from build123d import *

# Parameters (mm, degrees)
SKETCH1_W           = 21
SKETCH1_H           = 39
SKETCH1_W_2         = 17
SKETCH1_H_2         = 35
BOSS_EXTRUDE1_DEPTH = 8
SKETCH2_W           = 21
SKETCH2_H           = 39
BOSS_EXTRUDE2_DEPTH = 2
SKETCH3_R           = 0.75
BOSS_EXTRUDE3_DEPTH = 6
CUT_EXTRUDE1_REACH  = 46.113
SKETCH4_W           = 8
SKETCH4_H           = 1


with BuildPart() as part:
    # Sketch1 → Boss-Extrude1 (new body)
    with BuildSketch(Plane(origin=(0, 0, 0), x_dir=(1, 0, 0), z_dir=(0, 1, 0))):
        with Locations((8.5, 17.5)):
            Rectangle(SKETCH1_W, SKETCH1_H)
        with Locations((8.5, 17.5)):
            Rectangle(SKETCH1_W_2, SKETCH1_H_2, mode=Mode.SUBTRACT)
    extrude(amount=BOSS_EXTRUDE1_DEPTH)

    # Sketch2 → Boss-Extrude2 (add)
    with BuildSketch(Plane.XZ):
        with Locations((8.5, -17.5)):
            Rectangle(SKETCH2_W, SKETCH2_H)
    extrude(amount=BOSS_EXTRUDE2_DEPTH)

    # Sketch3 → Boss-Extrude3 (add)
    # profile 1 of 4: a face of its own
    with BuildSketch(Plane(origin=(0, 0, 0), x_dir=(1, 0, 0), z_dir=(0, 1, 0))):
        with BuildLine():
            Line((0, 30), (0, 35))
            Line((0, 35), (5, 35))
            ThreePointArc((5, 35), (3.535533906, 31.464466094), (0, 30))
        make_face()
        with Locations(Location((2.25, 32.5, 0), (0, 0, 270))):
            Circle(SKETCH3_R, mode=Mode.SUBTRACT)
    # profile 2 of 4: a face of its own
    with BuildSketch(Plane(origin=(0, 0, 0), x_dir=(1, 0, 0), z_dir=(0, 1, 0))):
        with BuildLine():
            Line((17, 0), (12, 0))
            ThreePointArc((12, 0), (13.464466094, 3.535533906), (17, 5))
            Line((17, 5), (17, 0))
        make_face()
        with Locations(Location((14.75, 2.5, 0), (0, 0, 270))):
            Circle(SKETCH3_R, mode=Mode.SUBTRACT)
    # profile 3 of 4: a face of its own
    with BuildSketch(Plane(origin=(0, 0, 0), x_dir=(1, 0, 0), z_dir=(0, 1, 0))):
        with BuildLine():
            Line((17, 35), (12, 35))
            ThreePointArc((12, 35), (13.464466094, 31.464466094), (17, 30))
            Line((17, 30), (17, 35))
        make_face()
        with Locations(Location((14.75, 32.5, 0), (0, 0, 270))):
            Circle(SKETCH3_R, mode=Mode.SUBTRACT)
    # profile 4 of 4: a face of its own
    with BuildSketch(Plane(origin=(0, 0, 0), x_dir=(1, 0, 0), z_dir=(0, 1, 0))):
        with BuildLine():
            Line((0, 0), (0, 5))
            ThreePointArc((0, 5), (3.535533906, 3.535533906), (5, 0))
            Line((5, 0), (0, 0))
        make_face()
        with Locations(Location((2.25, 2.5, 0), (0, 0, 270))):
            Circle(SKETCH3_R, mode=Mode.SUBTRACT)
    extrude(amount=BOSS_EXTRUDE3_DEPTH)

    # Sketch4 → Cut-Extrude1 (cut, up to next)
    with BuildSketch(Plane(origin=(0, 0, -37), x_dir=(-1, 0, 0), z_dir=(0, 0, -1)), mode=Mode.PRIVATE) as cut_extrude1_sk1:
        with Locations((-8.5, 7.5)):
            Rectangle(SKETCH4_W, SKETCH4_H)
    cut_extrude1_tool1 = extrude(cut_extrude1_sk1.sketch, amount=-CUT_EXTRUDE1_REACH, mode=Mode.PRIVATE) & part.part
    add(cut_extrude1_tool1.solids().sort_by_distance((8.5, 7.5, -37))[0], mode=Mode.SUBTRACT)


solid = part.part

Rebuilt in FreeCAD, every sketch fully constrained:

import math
import FreeCAD as App
import Part
import Sketcher
Q = App.Units.Quantity


def add_polygon(sketch, points):
    """Adds a closed chain of lines whose ends are joined by coincident constraints."""
    first, n = sketch.GeometryCount, len(points)
    for a, b in zip(points, points[1:] + points[:1]):
        sketch.addGeometry(Part.LineSegment(App.Vector(*a, 0), App.Vector(*b, 0)), False)
    for i in range(n):
        sketch.addConstraint(Sketcher.Constraint("Coincident", first + i, 2, first + (i + 1) % n, 1))

doc = App.newDocument("Part")
params = doc.addObject("Spreadsheet::Sheet", "Params")
for row, (alias, value) in enumerate([
    ("sketch1_width", "21 mm"),
    ("sketch1_width2", "17 mm"),
    ("sketch1_height", "39 mm"),
    ("sketch1_height2", "35 mm"),
    ("pad1_length", "8 mm"),
    ("sketch2_width", "21 mm"),
    ("sketch2_height", "39 mm"),
    ("pad2_length", "2 mm"),
    ("sketch3_radius", "5 mm"),
    ("sketch3_diameter", "1.5 mm"),
    ("pad3_length", "6 mm"),
    ("sketch4_width", "8 mm"),
    ("sketch4_height", "1 mm"),
], start=1):
    params.set(f"A{row}", alias)
    params.set(f"B{row}", "=" + value)
    params.setAlias(f"B{row}", alias)

body = doc.addObject("PartDesign::Body", "Body")

# Sketch on XZ plane
sketch1 = doc.addObject("Sketcher::SketchObject", "Sketch")
body.addObject(sketch1)
sketch1.AttachmentSupport = (doc.XZ_Plane, [""])
sketch1.MapMode = "FlatFace"
add_polygon(sketch1, [(-2, -37), (-2, 2), (19, 2), (19, -37)])  # lines 0-3
add_polygon(sketch1, [(17, 0), (0, 0), (0, -35), (17, -35)])  # lines 4-7
sketch1.addConstraint(Sketcher.Constraint("Vertical", 0))
sketch1.addConstraint(Sketcher.Constraint("Horizontal", 1))
sketch1.addConstraint(Sketcher.Constraint("Vertical", 2))
sketch1.addConstraint(Sketcher.Constraint("Horizontal", 3))
sketch1.addConstraint(Sketcher.Constraint("Horizontal", 4))
sketch1.addConstraint(Sketcher.Constraint("Vertical", 5))
sketch1.addConstraint(Sketcher.Constraint("Horizontal", 6))
sketch1.addConstraint(Sketcher.Constraint("Vertical", 7))
sketch1.addConstraint(Sketcher.Constraint("Coincident", 4, 2, -1, 1))
sketch1.addConstraint(Sketcher.Constraint("DistanceX", 1, 1, 1, 2, Q("21 mm")))
sketch1.addConstraint(Sketcher.Constraint("DistanceX", 4, 2, 4, 1, Q("17 mm")))
sketch1.addConstraint(Sketcher.Constraint("DistanceY", 0, 1, 0, 2, Q("39 mm")))
sketch1.addConstraint(Sketcher.Constraint("DistanceY", 5, 2, 5, 1, Q("35 mm")))
sketch1.addConstraint(Sketcher.Constraint("DistanceX", 0, 2, -1, 1, Q("2 mm")))
sketch1.addConstraint(Sketcher.Constraint("DistanceY", -1, 1, 0, 2, Q("2 mm")))
sketch1.setExpression("Constraints[17]", "Params.sketch1_width")
sketch1.setExpression("Constraints[18]", "Params.sketch1_width2")
sketch1.setExpression("Constraints[19]", "Params.sketch1_height")
sketch1.setExpression("Constraints[20]", "Params.sketch1_height2")
pad1 = doc.addObject("PartDesign::Pad", "Pad")
body.addObject(pad1)
pad1.Profile = sketch1
pad1.setExpression("Length", "Params.pad1_length")
pad1.Reversed = True

# Sketch on XZ plane
sketch2 = doc.addObject("Sketcher::SketchObject", "Sketch001")
body.addObject(sketch2)
sketch2.AttachmentSupport = (doc.XZ_Plane, [""])
sketch2.MapMode = "FlatFace"
add_polygon(sketch2, [(-2, 2), (-2, -37), (19, -37), (19, 2)])  # lines 0-3
sketch2.addConstraint(Sketcher.Constraint("Vertical", 0))
sketch2.addConstraint(Sketcher.Constraint("Horizontal", 1))
sketch2.addConstraint(Sketcher.Constraint("Vertical", 2))
sketch2.addConstraint(Sketcher.Constraint("Horizontal", 3))
sketch2.addConstraint(Sketcher.Constraint("DistanceX", 1, 1, 1, 2, Q("21 mm")))
sketch2.addConstraint(Sketcher.Constraint("DistanceY", 0, 2, 0, 1, Q("39 mm")))
sketch2.addConstraint(Sketcher.Constraint("DistanceX", 0, 2, -1, 1, Q("2 mm")))
sketch2.addConstraint(Sketcher.Constraint("DistanceY", 0, 2, -1, 1, Q("37 mm")))
sketch2.setExpression("Constraints[8]", "Params.sketch2_width")
sketch2.setExpression("Constraints[9]", "Params.sketch2_height")
pad2 = doc.addObject("PartDesign::Pad", "Pad001")
body.addObject(pad2)
pad2.Profile = sketch2
pad2.setExpression("Length", "Params.pad2_length")

# Sketch on XZ plane
sketch3 = doc.addObject("Sketcher::SketchObject", "Sketch002")
body.addObject(sketch3)
sketch3.AttachmentSupport = (doc.XZ_Plane, [""])
sketch3.MapMode = "FlatFace"
sketch3.addGeometry(Part.LineSegment(App.Vector(0, -35, 0), App.Vector(0, -30, 0)), False)
sketch3.addGeometry(Part.ArcOfCircle(Part.Circle(App.Vector(0, -35, 0), App.Vector(0, 0, 1), 5), math.radians(0), math.radians(90)), False)
sketch3.addGeometry(Part.LineSegment(App.Vector(5, -35, 0), App.Vector(0, -35, 0)), False)
sketch3.addGeometry(Part.Circle(App.Vector(2.25, -32.5, 0), App.Vector(0, 0, 1), 0.75), False)
sketch3.addGeometry(Part.LineSegment(App.Vector(12, 0, 0), App.Vector(17, 0, 0)), False)
sketch3.addGeometry(Part.LineSegment(App.Vector(17, 0, 0), App.Vector(17, -5, 0)), False)
sketch3.addGeometry(Part.ArcOfCircle(Part.Circle(App.Vector(17, 0, 0), App.Vector(0, 0, 1), 5), math.radians(180), math.radians(270)), False)
sketch3.addGeometry(Part.Circle(App.Vector(14.75, -2.5, 0), App.Vector(0, 0, 1), 0.75), False)
sketch3.addGeometry(Part.LineSegment(App.Vector(17, -35, 0), App.Vector(12, -35, 0)), False)
sketch3.addGeometry(Part.ArcOfCircle(Part.Circle(App.Vector(17, -35, 0), App.Vector(0, 0, 1), 5), math.radians(90), math.radians(180)), False)
sketch3.addGeometry(Part.LineSegment(App.Vector(17, -30, 0), App.Vector(17, -35, 0)), False)
sketch3.addGeometry(Part.Circle(App.Vector(14.75, -32.5, 0), App.Vector(0, 0, 1), 0.75), False)
sketch3.addGeometry(Part.LineSegment(App.Vector(0, -5, 0), App.Vector(0, 0, 0)), False)
sketch3.addGeometry(Part.LineSegment(App.Vector(0, 0, 0), App.Vector(5, 0, 0)), False)
sketch3.addGeometry(Part.ArcOfCircle(Part.Circle(App.Vector(0, 0, 0), App.Vector(0, 0, 1), 5), math.radians(-90), math.radians(0)), False)
sketch3.addGeometry(Part.Circle(App.Vector(2.25, -2.5, 0), App.Vector(0, 0, 1), 0.75), False)
sketch3.addConstraint(Sketcher.Constraint("Coincident", 0, 2, 1, 2))
sketch3.addConstraint(Sketcher.Constraint("Coincident", 1, 1, 2, 1))
sketch3.addConstraint(Sketcher.Constraint("Coincident", 2, 2, 0, 1))
sketch3.addConstraint(Sketcher.Constraint("Coincident", 4, 2, 5, 1))
sketch3.addConstraint(Sketcher.Constraint("Coincident", 5, 2, 6, 2))
sketch3.addConstraint(Sketcher.Constraint("Coincident", 6, 1, 4, 1))
sketch3.addConstraint(Sketcher.Constraint("Coincident", 8, 2, 9, 2))
sketch3.addConstraint(Sketcher.Constraint("Coincident", 9, 1, 10, 1))
sketch3.addConstraint(Sketcher.Constraint("Coincident", 10, 2, 8, 1))
sketch3.addConstraint(Sketcher.Constraint("Coincident", 12, 2, 13, 1))
sketch3.addConstraint(Sketcher.Constraint("Coincident", 13, 2, 14, 2))
sketch3.addConstraint(Sketcher.Constraint("Coincident", 14, 1, 12, 1))
sketch3.addConstraint(Sketcher.Constraint("Vertical", 0))
sketch3.addConstraint(Sketcher.Constraint("Horizontal", 2))
sketch3.addConstraint(Sketcher.Constraint("Horizontal", 4))
sketch3.addConstraint(Sketcher.Constraint("Vertical", 5))
sketch3.addConstraint(Sketcher.Constraint("Horizontal", 8))
sketch3.addConstraint(Sketcher.Constraint("Vertical", 10))
sketch3.addConstraint(Sketcher.Constraint("Vertical", 12))
sketch3.addConstraint(Sketcher.Constraint("Horizontal", 13))
sketch3.addConstraint(Sketcher.Constraint("Coincident", 14, 3, -1, 1))
sketch3.addConstraint(Sketcher.Constraint("Coincident", 12, 2, -1, 1))
sketch3.addConstraint(Sketcher.Constraint("Coincident", 2, 2, 1, 3))
sketch3.addConstraint(Sketcher.Constraint("Coincident", 4, 2, 6, 3))
sketch3.addConstraint(Sketcher.Constraint("Coincident", 10, 2, 9, 3))
sketch3.addConstraint(Sketcher.Constraint("Equal", 1, 6))
sketch3.addConstraint(Sketcher.Constraint("Equal", 3, 7))
sketch3.addConstraint(Sketcher.Constraint("Equal", 6, 9))
sketch3.addConstraint(Sketcher.Constraint("Equal", 7, 11))
sketch3.addConstraint(Sketcher.Constraint("Equal", 9, 14))
sketch3.addConstraint(Sketcher.Constraint("Equal", 11, 15))
sketch3.addConstraint(Sketcher.Constraint("PointOnObject", 1, 3, -2))
sketch3.addConstraint(Sketcher.Constraint("PointOnObject", 6, 3, -1))
sketch3.addConstraint(Sketcher.Constraint("Horizontal", 1, 3, 9, 3))
sketch3.addConstraint(Sketcher.Constraint("Horizontal", 3, 3, 11, 3))
sketch3.addConstraint(Sketcher.Constraint("Horizontal", 7, 3, 15, 3))
sketch3.addConstraint(Sketcher.Constraint("Vertical", 6, 3, 9, 3))
sketch3.addConstraint(Sketcher.Constraint("Vertical", 7, 3, 11, 3))
sketch3.addConstraint(Sketcher.Constraint("Vertical", 3, 3, 15, 3))
sketch3.addConstraint(Sketcher.Constraint("Radius", 1, Q("5 mm")))
sketch3.addConstraint(Sketcher.Constraint("Diameter", 3, Q("1.5 mm")))
sketch3.addConstraint(Sketcher.Constraint("DistanceY", 1, 3, -1, 1, Q("35 mm")))
sketch3.addConstraint(Sketcher.Constraint("DistanceX", -1, 1, 6, 3, Q("17 mm")))
sketch3.addConstraint(Sketcher.Constraint("DistanceY", 3, 3, 7, 3, Q("30 mm")))
sketch3.addConstraint(Sketcher.Constraint("DistanceY", 3, 3, -1, 1, Q("32.5 mm")))
sketch3.addConstraint(Sketcher.Constraint("DistanceX", 3, 3, 7, 3, Q("12.5 mm")))
sketch3.addConstraint(Sketcher.Constraint("DistanceX", -1, 1, 3, 3, Q("2.25 mm")))
sketch3.setExpression("Constraints[39]", "Params.sketch3_radius")
sketch3.setExpression("Constraints[40]", "Params.sketch3_diameter")
pad3 = doc.addObject("PartDesign::Pad", "Pad002")
body.addObject(pad3)
pad3.Profile = sketch3
pad3.setExpression("Length", "Params.pad3_length")
pad3.Reversed = True

# Sketch on XY plane
sketch4 = doc.addObject("Sketcher::SketchObject", "Sketch003")
body.addObject(sketch4)
sketch4.AttachmentSupport = (doc.XY_Plane, [""])
sketch4.MapMode = "FlatFace"
sketch4.AttachmentOffset = App.Placement(App.Vector(0, 0, -37), App.Rotation())
add_polygon(sketch4, [(12.5, 8), (12.5, 7), (4.5, 7), (4.5, 8)])  # lines 0-3
sketch4.addConstraint(Sketcher.Constraint("Vertical", 0))
sketch4.addConstraint(Sketcher.Constraint("Horizontal", 1))
sketch4.addConstraint(Sketcher.Constraint("Vertical", 2))
sketch4.addConstraint(Sketcher.Constraint("Horizontal", 3))
sketch4.addConstraint(Sketcher.Constraint("DistanceX", 1, 2, 1, 1, Q("8 mm")))
sketch4.addConstraint(Sketcher.Constraint("DistanceY", 0, 2, 0, 1, Q("1 mm")))
sketch4.addConstraint(Sketcher.Constraint("DistanceY", -1, 1, 0, 2, Q("7 mm")))
sketch4.addConstraint(Sketcher.Constraint("DistanceX", -1, 1, 0, 2, Q("12.5 mm")))
sketch4.setExpression("Constraints[8]", "Params.sketch4_width")
sketch4.setExpression("Constraints[9]", "Params.sketch4_height")
pocket1 = doc.addObject("PartDesign::Pocket", "Pocket")
body.addObject(pocket1)
pocket1.Profile = sketch4
pocket1.Type = "UpToFirst"
pocket1.Reversed = True

doc.recompute()
